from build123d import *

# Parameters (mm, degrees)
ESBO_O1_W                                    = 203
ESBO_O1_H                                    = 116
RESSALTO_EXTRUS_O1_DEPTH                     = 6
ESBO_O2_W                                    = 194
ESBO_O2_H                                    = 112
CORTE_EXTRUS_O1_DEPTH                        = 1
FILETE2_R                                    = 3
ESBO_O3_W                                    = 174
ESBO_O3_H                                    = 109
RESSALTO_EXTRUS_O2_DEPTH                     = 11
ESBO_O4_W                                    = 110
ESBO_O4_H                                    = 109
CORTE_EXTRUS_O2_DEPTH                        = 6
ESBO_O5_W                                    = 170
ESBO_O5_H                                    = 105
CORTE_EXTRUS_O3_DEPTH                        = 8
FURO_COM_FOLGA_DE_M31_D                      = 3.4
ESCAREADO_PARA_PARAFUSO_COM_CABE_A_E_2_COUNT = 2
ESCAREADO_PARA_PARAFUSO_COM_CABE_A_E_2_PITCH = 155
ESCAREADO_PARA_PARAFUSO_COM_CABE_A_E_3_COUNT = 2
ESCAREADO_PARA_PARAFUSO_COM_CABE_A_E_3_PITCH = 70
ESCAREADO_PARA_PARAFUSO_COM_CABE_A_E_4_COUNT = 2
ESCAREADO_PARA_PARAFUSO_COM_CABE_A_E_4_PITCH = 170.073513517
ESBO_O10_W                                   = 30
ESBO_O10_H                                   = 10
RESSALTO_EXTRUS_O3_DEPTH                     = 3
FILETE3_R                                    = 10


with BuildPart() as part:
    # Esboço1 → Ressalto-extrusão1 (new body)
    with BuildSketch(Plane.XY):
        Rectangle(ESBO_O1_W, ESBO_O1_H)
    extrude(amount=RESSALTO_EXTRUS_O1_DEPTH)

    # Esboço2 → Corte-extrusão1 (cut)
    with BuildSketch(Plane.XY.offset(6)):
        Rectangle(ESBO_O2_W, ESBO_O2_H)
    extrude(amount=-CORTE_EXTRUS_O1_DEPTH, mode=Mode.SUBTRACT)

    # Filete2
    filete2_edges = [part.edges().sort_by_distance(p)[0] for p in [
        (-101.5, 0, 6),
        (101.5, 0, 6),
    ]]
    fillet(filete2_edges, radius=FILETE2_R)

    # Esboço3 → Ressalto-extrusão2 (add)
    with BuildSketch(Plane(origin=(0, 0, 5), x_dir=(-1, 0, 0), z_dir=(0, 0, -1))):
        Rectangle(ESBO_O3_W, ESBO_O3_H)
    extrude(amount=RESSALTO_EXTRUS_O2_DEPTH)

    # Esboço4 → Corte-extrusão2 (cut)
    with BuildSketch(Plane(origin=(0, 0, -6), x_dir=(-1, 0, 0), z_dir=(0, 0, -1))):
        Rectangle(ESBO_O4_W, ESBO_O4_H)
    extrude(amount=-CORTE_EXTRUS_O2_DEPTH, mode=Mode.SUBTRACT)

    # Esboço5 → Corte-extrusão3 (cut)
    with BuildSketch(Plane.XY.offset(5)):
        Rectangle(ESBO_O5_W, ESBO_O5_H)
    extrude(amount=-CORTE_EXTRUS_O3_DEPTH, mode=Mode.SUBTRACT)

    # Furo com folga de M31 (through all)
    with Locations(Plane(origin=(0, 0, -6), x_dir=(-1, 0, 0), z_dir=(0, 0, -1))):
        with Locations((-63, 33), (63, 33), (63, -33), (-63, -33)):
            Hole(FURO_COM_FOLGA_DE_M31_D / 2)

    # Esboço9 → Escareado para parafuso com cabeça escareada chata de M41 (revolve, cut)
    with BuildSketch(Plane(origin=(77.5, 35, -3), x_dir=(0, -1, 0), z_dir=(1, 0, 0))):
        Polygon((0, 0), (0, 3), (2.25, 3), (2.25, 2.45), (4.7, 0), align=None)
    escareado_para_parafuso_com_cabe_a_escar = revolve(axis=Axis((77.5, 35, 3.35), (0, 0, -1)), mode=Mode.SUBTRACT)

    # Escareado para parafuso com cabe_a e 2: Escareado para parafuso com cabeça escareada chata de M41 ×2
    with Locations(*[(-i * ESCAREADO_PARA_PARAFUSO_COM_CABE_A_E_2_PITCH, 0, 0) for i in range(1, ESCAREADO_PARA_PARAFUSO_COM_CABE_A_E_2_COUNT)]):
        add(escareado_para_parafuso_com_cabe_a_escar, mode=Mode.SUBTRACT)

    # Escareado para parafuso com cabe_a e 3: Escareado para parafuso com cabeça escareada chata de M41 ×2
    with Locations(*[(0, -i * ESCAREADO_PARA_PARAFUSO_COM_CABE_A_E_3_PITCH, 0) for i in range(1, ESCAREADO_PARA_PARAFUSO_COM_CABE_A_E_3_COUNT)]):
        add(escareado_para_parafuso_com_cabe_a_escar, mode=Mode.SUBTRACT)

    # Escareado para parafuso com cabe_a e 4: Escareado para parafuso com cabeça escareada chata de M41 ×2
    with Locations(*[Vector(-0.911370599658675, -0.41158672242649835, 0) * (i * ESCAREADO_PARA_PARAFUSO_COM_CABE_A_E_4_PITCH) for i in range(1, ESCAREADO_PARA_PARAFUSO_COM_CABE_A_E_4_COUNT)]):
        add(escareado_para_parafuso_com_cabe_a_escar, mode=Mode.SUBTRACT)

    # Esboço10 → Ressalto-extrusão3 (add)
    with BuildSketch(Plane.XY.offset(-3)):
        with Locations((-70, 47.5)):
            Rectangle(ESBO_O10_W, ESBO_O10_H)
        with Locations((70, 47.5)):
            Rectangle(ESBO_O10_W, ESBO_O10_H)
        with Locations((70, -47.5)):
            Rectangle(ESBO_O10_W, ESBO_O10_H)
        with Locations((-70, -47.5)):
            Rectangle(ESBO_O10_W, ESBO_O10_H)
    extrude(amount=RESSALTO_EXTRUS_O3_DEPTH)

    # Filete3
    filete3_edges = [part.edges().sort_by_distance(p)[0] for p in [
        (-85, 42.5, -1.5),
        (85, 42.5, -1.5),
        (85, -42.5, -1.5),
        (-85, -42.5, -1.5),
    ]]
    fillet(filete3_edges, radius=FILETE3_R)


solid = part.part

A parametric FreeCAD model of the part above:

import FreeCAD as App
import Part
import Sketcher
from FreeCAD import Vector
Q = App.Units.Quantity


def edges_at(feature, points):
    """Names of the edges that pass closest to the given points."""
    edges = feature.Shape.Edges
    near = lambda p: min(range(len(edges)), key=lambda i: edges[i].distToShape(Part.Vertex(*p))[0])
    return sorted({f"Edge{near(p) + 1}" for p in points})


def add_polygon(sketch, points):
    """Adds a closed chain of lines whose ends are joined by coincident constraints."""
    first, n = sketch.GeometryCount, len(points)
    for a, b in zip(points, points[1:] + points[:1]):
        sketch.addGeometry(Part.LineSegment(App.Vector(*a, 0), App.Vector(*b, 0)), False)
    for i in range(n):
        sketch.addConstraint(Sketcher.Constraint("Coincident", first + i, 2, first + (i + 1) % n, 1))

doc = App.newDocument("Part")
body = doc.addObject("PartDesign::Body", "Body")

sketch1 = body.newObject("Sketcher::SketchObject", "Sketch")
sketch1.AttachmentSupport = (doc.getObject("XY_Plane"), [""])
sketch1.MapMode = "FlatFace"
add_polygon(sketch1, [(-101.5, 58), (-101.5, -58), (101.5, -58), (101.5, 58)])
sketch1.addConstraint(Sketcher.Constraint("Vertical", 0))
sketch1.addConstraint(Sketcher.Constraint("Horizontal", 1))
sketch1.addConstraint(Sketcher.Constraint("Vertical", 2))
sketch1.addConstraint(Sketcher.Constraint("Horizontal", 3))
sketch1.addConstraint(Sketcher.Constraint("Symmetric", 0, 2, 2, 2, -1, 1))
sketch1.addConstraint(Sketcher.Constraint("DistanceX", 1, 1, 1, 2, Q("203 mm")))
sketch1.addConstraint(Sketcher.Constraint("DistanceY", 0, 2, 0, 1, Q("116 mm")))
pad1 = body.newObject("PartDesign::Pad", "Pad")
pad1.Profile = sketch1
pad1.Length = 6

sketch2 = body.newObject("Sketcher::SketchObject", "Sketch001")
sketch2.AttachmentSupport = (doc.getObject("XY_Plane"), [""])
sketch2.MapMode = "FlatFace"
sketch2.AttachmentOffset = App.Placement(Vector(0, 0, 6), App.Rotation())
add_polygon(sketch2, [(-97, 56), (-97, -56), (97, -56), (97, 56)])
sketch2.addConstraint(Sketcher.Constraint("Vertical", 0))
sketch2.addConstraint(Sketcher.Constraint("Horizontal", 1))
sketch2.addConstraint(Sketcher.Constraint("Vertical", 2))
sketch2.addConstraint(Sketcher.Constraint("Horizontal", 3))
sketch2.addConstraint(Sketcher.Constraint("Symmetric", 0, 2, 2, 2, -1, 1))
sketch2.addConstraint(Sketcher.Constraint("DistanceX", 1, 1, 1, 2, Q("194 mm")))
sketch2.addConstraint(Sketcher.Constraint("DistanceY", 0, 2, 0, 1, Q("112 mm")))
pocket1 = body.newObject("PartDesign::Pocket", "Pocket")
pocket1.Profile = sketch2
pocket1.Length = 1
doc.recompute()

fillet = body.newObject("PartDesign::Fillet", "Fillet")
fillet.Base = (pocket1, edges_at(pocket1, [(-101.5, 0, 6), (101.5, 0, 6)]))
fillet.Radius = 3

sketch3 = body.newObject("Sketcher::SketchObject", "Sketch002")
sketch3.AttachmentSupport = (doc.getObject("XY_Plane"), [""])
sketch3.MapMode = "FlatFace"
sketch3.AttachmentOffset = App.Placement(Vector(0, 0, 5), App.Rotation())
add_polygon(sketch3, [(87, 54.5), (87, -54.5), (-87, -54.5), (-87, 54.5)])
sketch3.addConstraint(Sketcher.Constraint("Vertical", 0))
sketch3.addConstraint(Sketcher.Constraint("Horizontal", 1))
sketch3.addConstraint(Sketcher.Constraint("Vertical", 2))
sketch3.addConstraint(Sketcher.Constraint("Horizontal", 3))
sketch3.addConstraint(Sketcher.Constraint("Symmetric", 0, 2, 2, 2, -1, 1))
sketch3.addConstraint(Sketcher.Constraint("DistanceX", 1, 2, 1, 1, Q("174 mm")))
sketch3.addConstraint(Sketcher.Constraint("DistanceY", 0, 2, 0, 1, Q("109 mm")))
pad2 = body.newObject("PartDesign::Pad", "Pad001")
pad2.Profile = sketch3
pad2.Length = 11
pad2.Reversed = True

sketch4 = body.newObject("Sketcher::SketchObject", "Sketch003")
sketch4.AttachmentSupport = (doc.getObject("XY_Plane"), [""])
sketch4.MapMode = "FlatFace"
sketch4.AttachmentOffset = App.Placement(Vector(0, 0, -6), App.Rotation())
add_polygon(sketch4, [(55, 54.5), (55, -54.5), (-55, -54.5), (-55, 54.5)])
sketch4.addConstraint(Sketcher.Constraint("Vertical", 0))
sketch4.addConstraint(Sketcher.Constraint("Horizontal", 1))
sketch4.addConstraint(Sketcher.Constraint("Vertical", 2))
sketch4.addConstraint(Sketcher.Constraint("Horizontal", 3))
sketch4.addConstraint(Sketcher.Constraint("Symmetric", 0, 2, 2, 2, -1, 1))
sketch4.addConstraint(Sketcher.Constraint("DistanceX", 1, 2, 1, 1, Q("110 mm")))
sketch4.addConstraint(Sketcher.Constraint("DistanceY", 0, 2, 0, 1, Q("109 mm")))
pocket2 = body.newObject("PartDesign::Pocket", "Pocket001")
pocket2.Profile = sketch4
pocket2.Length = 6
pocket2.Reversed = True

sketch5 = body.newObject("Sketcher::SketchObject", "Sketch004")
sketch5.AttachmentSupport = (doc.getObject("XY_Plane"), [""])
sketch5.MapMode = "FlatFace"
sketch5.AttachmentOffset = App.Placement(Vector(0, 0, 5), App.Rotation())
add_polygon(sketch5, [(-85, 52.5), (-85, -52.5), (85, -52.5), (85, 52.5)])
sketch5.addConstraint(Sketcher.Constraint("Vertical", 0))
sketch5.addConstraint(Sketcher.Constraint("Horizontal", 1))
sketch5.addConstraint(Sketcher.Constraint("Vertical", 2))
sketch5.addConstraint(Sketcher.Constraint("Horizontal", 3))
sketch5.addConstraint(Sketcher.Constraint("Symmetric", 0, 2, 2, 2, -1, 1))
sketch5.addConstraint(Sketcher.Constraint("DistanceX", 1, 1, 1, 2, Q("170 mm")))
sketch5.addConstraint(Sketcher.Constraint("DistanceY", 0, 2, 0, 1, Q("105 mm")))
pocket3 = body.newObject("PartDesign::Pocket", "Pocket002")
pocket3.Profile = sketch5
pocket3.Length = 8

sketch6 = body.newObject("Sketcher::SketchObject", "Sketch005")
sketch6.AttachmentSupport = (doc.getObject("XY_Plane"), [""])
sketch6.MapMode = "FlatFace"
sketch6.AttachmentOffset = App.Placement(Vector(0, 0, -6), App.Rotation())
sketch6.addGeometry(Part.Circle(Vector(63, 33, 0), Vector(0, 0, 1), 1.7), False)
sketch6.addGeometry(Part.Circle(Vector(-63, 33, 0), Vector(0, 0, 1), 1.7), False)
sketch6.addGeometry(Part.Circle(Vector(-63, -33, 0), Vector(0, 0, 1), 1.7), False)
sketch6.addGeometry(Part.Circle(Vector(63, -33, 0), Vector(0, 0, 1), 1.7), False)
sketch6.addConstraint(Sketcher.Constraint("Equal", 0, 1))
sketch6.addConstraint(Sketcher.Constraint("Equal", 1, 2))
sketch6.addConstraint(Sketcher.Constraint("Equal", 2, 3))
sketch6.addConstraint(Sketcher.Constraint("Symmetric", 0, 3, 2, 3, -1, 1))
sketch6.addConstraint(Sketcher.Constraint("Symmetric", 1, 3, 3, 3, -1, 1))
sketch6.addConstraint(Sketcher.Constraint("Symmetric", 0, 3, 1, 3, -2))
sketch6.addConstraint(Sketcher.Constraint("Diameter", 0, Q("3.4 mm")))
sketch6.addConstraint(Sketcher.Constraint("DistanceX", -1, 1, 0, 3, Q("63 mm")))
sketch6.addConstraint(Sketcher.Constraint("DistanceY", -1, 1, 0, 3, Q("33 mm")))
doc.recompute()
hole = body.newObject("PartDesign::Hole", "Hole")
hole.Profile = sketch6
hole.ThreadType = "None"
hole.Diameter = 3.4
hole.DepthType = "ThroughAll"
hole.Reversed = True

sketch7 = body.newObject("Sketcher::SketchObject", "Sketch006")
sketch7.AttachmentSupport = (doc.getObject("YZ_Plane"), [""])
sketch7.MapMode = "FlatFace"
sketch7.AttachmentOffset = App.Placement(Vector(0, 0, 77.5), App.Rotation())
add_polygon(sketch7, [(35, -6), (35, -3), (30.3, -3), (32.75, -5.45), (32.75, -6)])
sketch7.addGeometry(Part.LineSegment(Vector(35, -3, 0), Vector(35, -6, 0)), True)
sketch7.addConstraint(Sketcher.Constraint("Vertical", 0))
sketch7.addConstraint(Sketcher.Constraint("Horizontal", 1))
sketch7.addConstraint(Sketcher.Constraint("Vertical", 3))
sketch7.addConstraint(Sketcher.Constraint("Horizontal", 4))
sketch7.addConstraint(Sketcher.Constraint("Vertical", 5))
sketch7.addConstraint(Sketcher.Constraint("Coincident", 5, 1, 0, 2))
sketch7.addConstraint(Sketcher.Constraint("Horizontal", 3, 2, 5, 2))
sketch7.addConstraint(Sketcher.Constraint("DistanceY", 0, 1, 0, 2, Q("3 mm")))
sketch7.addConstraint(Sketcher.Constraint("Angle", 2, Q("-45 deg")))
sketch7.addConstraint(Sketcher.Constraint("DistanceX", 1, 2, 1, 1, Q("4.7 mm")))
sketch7.addConstraint(Sketcher.Constraint("DistanceX", -1, 1, 0, 2, Q("35 mm")))
sketch7.addConstraint(Sketcher.Constraint("DistanceY", 0, 2, -1, 1, Q("3 mm")))
sketch7.addConstraint(Sketcher.Constraint("DistanceX", 4, 1, 4, 2, Q("2.25 mm")))
groove = body.newObject("PartDesign::Groove", "Groove")
groove.Profile = sketch7
groove.ReferenceAxis = (sketch7, ["Axis0"])
groove.Angle = 360
doc.recompute()

linearpattern = body.newObject("PartDesign::LinearPattern", "LinearPattern")
linearpattern.Originals = [groove]
linearpattern.Direction = (doc.getObject("X_Axis"), [""])
linearpattern.Mode = "offset"
linearpattern.Offset = 155
linearpattern.Occurrences = 2
linearpattern.Reversed = True
body.Tip = linearpattern
doc.recompute()

linearpattern2 = body.newObject("PartDesign::LinearPattern", "LinearPattern001")
linearpattern2.Originals = [groove]
linearpattern2.Direction = (doc.getObject("Y_Axis"), [""])
linearpattern2.Mode = "offset"
linearpattern2.Offset = 70
linearpattern2.Occurrences = 2
linearpattern2.Reversed = True
body.Tip = linearpattern2
doc.recompute()

datumline = body.newObject("PartDesign::Line", "DatumLine")
datumline.Placement = App.Placement(Vector(0, 0, 0), App.Rotation(Vector(0, 0, 1), Vector(-0.9113706, -0.411586722, 0)))
linearpattern3 = body.newObject("PartDesign::LinearPattern", "LinearPattern002")
linearpattern3.Originals = [groove]
linearpattern3.Direction = (datumline, [""])
linearpattern3.Mode = "offset"
linearpattern3.Offset = 170.073514
linearpattern3.Occurrences = 2
body.Tip = linearpattern3

sketch8 = body.newObject("Sketcher::SketchObject", "Sketch007")
sketch8.AttachmentSupport = (doc.getObject("XY_Plane"), [""])
sketch8.MapMode = "FlatFace"
sketch8.AttachmentOffset = App.Placement(Vector(0, 0, -3), App.Rotation())
add_polygon(sketch8, [(-85, 52.5), (-85, 42.5), (-55, 42.5), (-55, 52.5)])
add_polygon(sketch8, [(55, 52.5), (55, 42.5), (85, 42.5), (85, 52.5)])
add_polygon(sketch8, [(55, -42.5), (55, -52.5), (85, -52.5), (85, -42.5)])
add_polygon(sketch8, [(-85, -42.5), (-85, -52.5), (-55, -52.5), (-55, -42.5)])
sketch8.addConstraint(Sketcher.Constraint("Vertical", 0))
sketch8.addConstraint(Sketcher.Constraint("Horizontal", 1))
sketch8.addConstraint(Sketcher.Constraint("Vertical", 2))
sketch8.addConstraint(Sketcher.Constraint("Horizontal", 3))
sketch8.addConstraint(Sketcher.Constraint("Vertical", 4))
sketch8.addConstraint(Sketcher.Constraint("Horizontal", 5))
sketch8.addConstraint(Sketcher.Constraint("Vertical", 6))
sketch8.addConstraint(Sketcher.Constraint("Horizontal", 7))
sketch8.addConstraint(Sketcher.Constraint("Vertical", 8))
sketch8.addConstraint(Sketcher.Constraint("Horizontal", 9))
sketch8.addConstraint(Sketcher.Constraint("Vertical", 10))
sketch8.addConstraint(Sketcher.Constraint("Horizontal", 11))
sketch8.addConstraint(Sketcher.Constraint("Vertical", 12))
sketch8.addConstraint(Sketcher.Constraint("Horizontal", 13))
sketch8.addConstraint(Sketcher.Constraint("Vertical", 14))
sketch8.addConstraint(Sketcher.Constraint("Horizontal", 15))
sketch8.addConstraint(Sketcher.Constraint("Symmetric", 2, 2, 8, 2, -1, 1))
sketch8.addConstraint(Sketcher.Constraint("Symmetric", 0, 2, 10, 2, -1, 1))
sketch8.addConstraint(Sketcher.Constraint("Symmetric", 6, 2, 12, 2, -1, 1))
sketch8.addConstraint(Sketcher.Constraint("Symmetric", 4, 2, 14, 2, -1, 1))
sketch8.addConstraint(Sketcher.Constraint("Symmetric", 1, 2, 4, 2, -2))
sketch8.addConstraint(Sketcher.Constraint("Symmetric", 3, 2, 6, 2, -2))
sketch8.addConstraint(Sketcher.Constraint("DistanceX", 1, 1, 1, 2, Q("30 mm")))
sketch8.addConstraint(Sketcher.Constraint("DistanceY", 0, 2, 0, 1, Q("10 mm")))
sketch8.addConstraint(Sketcher.Constraint("DistanceX", 0, 2, -1, 1, Q("85 mm")))
sketch8.addConstraint(Sketcher.Constraint("DistanceY", 8, 2, 4, 2, Q("95 mm")))
pad3 = body.newObject("PartDesign::Pad", "Pad002")
pad3.Profile = sketch8
pad3.Length = 3
doc.recompute()

fillet2 = body.newObject("PartDesign::Fillet", "Fillet001")
fillet2.Base = (pad3, edges_at(pad3, [
    (-85, 42.5, -1.5),
    (85, 42.5, -1.5),
    (85, -42.5, -1.5),
    (-85, -42.5, -1.5),
]))
fillet2.Radius = 10

doc.recompute()
